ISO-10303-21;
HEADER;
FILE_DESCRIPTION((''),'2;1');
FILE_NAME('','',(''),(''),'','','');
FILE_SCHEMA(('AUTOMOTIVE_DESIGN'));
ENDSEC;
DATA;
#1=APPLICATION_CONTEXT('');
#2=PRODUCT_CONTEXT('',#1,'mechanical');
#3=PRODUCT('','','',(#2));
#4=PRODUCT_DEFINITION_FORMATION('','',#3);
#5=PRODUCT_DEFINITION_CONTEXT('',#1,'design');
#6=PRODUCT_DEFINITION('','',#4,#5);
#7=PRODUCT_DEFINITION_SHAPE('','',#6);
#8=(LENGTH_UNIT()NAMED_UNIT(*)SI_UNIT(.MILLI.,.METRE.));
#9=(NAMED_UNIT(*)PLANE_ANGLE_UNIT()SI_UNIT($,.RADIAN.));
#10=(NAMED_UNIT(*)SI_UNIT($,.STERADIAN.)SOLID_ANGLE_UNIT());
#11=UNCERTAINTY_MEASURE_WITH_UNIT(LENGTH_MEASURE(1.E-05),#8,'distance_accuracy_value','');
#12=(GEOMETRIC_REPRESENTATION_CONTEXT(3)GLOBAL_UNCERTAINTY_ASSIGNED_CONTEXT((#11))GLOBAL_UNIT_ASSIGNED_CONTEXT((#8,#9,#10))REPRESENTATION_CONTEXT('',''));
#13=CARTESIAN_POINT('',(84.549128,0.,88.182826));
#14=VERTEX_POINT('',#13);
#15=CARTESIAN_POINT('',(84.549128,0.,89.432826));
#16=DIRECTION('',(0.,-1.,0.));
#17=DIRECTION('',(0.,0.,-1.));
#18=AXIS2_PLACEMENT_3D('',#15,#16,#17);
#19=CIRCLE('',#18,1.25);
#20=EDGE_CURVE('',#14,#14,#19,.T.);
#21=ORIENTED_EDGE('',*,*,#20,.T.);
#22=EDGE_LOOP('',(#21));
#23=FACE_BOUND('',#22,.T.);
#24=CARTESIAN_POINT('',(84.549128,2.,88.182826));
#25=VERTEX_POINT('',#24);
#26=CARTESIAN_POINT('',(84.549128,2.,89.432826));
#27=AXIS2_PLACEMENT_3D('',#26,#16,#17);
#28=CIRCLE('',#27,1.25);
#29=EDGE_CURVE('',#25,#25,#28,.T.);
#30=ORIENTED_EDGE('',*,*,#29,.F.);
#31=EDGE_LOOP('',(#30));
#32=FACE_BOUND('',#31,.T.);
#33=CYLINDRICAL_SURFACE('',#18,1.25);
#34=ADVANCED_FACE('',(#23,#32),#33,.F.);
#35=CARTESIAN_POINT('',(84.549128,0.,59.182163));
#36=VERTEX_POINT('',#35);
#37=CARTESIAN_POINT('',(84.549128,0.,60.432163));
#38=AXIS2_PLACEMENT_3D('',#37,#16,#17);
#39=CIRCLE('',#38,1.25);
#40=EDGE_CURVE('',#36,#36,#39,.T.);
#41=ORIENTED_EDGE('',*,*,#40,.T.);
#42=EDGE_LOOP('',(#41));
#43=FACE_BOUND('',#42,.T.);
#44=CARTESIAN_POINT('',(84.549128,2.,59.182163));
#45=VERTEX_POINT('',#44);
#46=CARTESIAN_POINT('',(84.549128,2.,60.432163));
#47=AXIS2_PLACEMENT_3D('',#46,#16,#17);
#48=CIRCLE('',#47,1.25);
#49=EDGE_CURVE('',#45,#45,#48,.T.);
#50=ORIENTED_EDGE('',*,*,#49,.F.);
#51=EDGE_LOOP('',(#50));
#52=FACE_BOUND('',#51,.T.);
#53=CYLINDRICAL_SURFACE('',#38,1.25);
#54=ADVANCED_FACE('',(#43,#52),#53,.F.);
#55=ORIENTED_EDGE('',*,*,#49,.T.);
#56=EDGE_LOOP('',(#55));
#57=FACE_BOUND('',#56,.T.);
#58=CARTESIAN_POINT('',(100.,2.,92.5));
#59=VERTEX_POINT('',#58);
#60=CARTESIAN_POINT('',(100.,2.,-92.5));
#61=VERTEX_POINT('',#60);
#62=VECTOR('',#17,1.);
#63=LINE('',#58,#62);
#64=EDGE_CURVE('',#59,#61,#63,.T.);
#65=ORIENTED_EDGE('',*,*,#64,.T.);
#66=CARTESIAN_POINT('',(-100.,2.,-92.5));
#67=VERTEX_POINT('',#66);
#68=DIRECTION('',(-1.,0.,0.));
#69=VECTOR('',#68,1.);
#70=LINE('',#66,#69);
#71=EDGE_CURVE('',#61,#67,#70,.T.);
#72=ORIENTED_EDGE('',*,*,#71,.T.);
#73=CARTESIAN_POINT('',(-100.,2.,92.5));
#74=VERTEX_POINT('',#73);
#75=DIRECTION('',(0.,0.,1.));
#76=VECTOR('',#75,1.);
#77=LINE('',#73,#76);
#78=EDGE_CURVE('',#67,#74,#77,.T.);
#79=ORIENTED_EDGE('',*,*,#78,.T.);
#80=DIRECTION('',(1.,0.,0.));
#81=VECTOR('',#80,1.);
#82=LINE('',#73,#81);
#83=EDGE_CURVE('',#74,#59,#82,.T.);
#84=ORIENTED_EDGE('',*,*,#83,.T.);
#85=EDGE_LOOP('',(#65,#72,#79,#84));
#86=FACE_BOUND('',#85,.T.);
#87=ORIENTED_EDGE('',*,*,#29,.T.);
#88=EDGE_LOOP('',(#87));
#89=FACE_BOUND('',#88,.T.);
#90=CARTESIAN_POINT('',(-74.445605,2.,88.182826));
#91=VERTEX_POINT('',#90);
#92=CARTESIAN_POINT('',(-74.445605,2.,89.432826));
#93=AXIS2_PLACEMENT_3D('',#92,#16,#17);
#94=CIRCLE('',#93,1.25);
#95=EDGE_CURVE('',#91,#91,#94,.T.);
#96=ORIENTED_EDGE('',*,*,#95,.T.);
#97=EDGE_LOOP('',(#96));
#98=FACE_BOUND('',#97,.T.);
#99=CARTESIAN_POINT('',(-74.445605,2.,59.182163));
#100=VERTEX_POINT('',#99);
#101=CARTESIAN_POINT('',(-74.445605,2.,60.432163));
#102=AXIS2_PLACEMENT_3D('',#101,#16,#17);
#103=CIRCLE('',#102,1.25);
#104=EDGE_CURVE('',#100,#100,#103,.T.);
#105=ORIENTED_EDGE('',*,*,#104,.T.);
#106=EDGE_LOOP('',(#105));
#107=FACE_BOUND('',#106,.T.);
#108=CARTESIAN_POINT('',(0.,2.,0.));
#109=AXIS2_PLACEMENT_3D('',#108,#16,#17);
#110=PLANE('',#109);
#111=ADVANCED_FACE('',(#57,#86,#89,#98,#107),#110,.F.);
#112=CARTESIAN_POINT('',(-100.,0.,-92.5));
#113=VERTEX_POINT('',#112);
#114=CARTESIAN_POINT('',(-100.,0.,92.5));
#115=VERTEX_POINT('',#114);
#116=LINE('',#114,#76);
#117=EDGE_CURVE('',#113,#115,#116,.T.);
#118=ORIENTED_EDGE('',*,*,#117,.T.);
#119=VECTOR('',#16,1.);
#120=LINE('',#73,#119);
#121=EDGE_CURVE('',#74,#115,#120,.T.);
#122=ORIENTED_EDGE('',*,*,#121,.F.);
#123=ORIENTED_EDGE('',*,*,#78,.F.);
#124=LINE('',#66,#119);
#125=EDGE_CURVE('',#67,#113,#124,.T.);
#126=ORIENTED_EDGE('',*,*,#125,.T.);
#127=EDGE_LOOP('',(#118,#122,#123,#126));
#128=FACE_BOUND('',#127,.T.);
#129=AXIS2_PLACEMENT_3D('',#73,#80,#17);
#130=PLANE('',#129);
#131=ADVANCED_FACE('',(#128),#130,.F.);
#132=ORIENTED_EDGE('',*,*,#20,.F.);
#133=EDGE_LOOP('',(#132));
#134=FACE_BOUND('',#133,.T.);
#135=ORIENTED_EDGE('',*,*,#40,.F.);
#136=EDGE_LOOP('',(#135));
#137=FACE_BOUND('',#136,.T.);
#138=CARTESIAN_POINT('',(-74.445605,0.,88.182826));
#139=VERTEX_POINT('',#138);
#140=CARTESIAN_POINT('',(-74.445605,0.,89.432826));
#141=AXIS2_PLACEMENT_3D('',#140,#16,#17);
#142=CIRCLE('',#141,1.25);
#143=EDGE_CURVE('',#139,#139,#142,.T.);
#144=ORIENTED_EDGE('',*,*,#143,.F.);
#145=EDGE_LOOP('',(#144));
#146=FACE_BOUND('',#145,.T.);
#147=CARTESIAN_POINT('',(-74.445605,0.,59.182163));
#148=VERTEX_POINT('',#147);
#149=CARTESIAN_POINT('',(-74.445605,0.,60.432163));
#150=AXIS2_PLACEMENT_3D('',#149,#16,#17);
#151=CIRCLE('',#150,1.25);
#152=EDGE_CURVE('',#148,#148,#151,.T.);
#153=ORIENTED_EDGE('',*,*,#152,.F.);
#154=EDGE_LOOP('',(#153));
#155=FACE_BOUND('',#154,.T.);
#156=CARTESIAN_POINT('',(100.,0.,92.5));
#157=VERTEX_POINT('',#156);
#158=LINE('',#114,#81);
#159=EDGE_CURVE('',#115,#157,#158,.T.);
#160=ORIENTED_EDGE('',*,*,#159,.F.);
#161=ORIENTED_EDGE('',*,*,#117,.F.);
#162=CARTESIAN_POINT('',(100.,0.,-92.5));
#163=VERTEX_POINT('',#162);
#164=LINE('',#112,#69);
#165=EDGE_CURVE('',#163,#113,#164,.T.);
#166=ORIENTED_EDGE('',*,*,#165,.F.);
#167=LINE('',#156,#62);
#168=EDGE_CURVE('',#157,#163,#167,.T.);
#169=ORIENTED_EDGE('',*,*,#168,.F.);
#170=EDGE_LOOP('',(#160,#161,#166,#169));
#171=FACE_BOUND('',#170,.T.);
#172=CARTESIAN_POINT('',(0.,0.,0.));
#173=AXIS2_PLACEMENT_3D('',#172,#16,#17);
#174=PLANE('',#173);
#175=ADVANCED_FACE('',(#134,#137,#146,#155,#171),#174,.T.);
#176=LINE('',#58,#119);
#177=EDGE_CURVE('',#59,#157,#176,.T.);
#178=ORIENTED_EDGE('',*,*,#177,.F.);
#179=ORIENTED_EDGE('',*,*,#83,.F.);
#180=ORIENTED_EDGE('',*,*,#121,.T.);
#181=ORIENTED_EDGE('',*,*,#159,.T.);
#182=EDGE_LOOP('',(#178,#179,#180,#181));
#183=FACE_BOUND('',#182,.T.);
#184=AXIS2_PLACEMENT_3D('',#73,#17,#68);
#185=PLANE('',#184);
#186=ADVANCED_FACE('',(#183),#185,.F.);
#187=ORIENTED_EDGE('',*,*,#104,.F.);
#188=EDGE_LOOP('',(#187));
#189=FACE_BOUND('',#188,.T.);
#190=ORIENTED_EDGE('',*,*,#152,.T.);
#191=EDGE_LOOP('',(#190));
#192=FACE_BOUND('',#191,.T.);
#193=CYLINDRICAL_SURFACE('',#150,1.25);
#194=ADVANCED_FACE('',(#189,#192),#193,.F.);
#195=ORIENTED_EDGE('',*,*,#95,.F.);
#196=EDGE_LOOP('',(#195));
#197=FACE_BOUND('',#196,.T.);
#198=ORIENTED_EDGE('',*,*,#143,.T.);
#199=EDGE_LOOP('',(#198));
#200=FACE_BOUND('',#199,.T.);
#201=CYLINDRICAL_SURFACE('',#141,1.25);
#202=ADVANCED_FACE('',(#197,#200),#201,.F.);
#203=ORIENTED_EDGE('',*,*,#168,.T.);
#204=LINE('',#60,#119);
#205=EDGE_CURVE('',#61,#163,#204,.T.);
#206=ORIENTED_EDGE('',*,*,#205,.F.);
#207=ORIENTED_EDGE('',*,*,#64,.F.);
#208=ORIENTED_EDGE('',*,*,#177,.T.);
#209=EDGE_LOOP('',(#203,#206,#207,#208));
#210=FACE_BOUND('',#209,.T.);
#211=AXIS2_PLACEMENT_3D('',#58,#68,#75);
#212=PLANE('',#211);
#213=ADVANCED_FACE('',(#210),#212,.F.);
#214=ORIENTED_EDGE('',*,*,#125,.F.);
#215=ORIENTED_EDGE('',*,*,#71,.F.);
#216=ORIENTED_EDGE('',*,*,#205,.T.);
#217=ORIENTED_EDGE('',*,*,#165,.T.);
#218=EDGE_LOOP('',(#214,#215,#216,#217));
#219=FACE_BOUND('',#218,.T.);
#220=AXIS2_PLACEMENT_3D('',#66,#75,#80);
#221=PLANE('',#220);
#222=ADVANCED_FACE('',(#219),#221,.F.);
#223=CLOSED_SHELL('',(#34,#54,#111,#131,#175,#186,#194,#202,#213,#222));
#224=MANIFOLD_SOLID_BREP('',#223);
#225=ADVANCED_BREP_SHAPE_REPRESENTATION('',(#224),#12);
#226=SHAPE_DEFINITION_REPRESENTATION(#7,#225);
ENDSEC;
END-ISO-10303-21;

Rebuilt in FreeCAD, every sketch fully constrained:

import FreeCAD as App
import Part
import Sketcher

V = App.Vector
Q = App.Units.Quantity

doc = App.newDocument("Part")
body = doc.addObject("PartDesign::Body", "Body")

# Sketch on XZ plane
sketch1 = doc.addObject("Sketcher::SketchObject", "Sketch")
body.addObject(sketch1)
sketch1.AttachmentSupport = (doc.XZ_Plane, [""])
sketch1.MapMode = "FlatFace"
sketch1.addGeometry(Part.LineSegment(V(-100, -92, 0), V(-100, 92, 0)), False)
sketch1.addGeometry(Part.LineSegment(V(-100, 92, 0), V(100, 92, 0)), False)
sketch1.addGeometry(Part.LineSegment(V(100, 92, 0), V(100, -92, 0)), False)
sketch1.addGeometry(Part.LineSegment(V(100, -92, 0), V(-100, -92, 0)), False)
sketch1.addConstraint(Sketcher.Constraint("Coincident", 0, 2, 1, 1))
sketch1.addConstraint(Sketcher.Constraint("Coincident", 1, 2, 2, 1))
sketch1.addConstraint(Sketcher.Constraint("Coincident", 2, 2, 3, 1))
sketch1.addConstraint(Sketcher.Constraint("Coincident", 3, 2, 0, 1))
sketch1.addConstraint(Sketcher.Constraint("Vertical", 0))
sketch1.addConstraint(Sketcher.Constraint("Horizontal", 1))
sketch1.addConstraint(Sketcher.Constraint("Vertical", 2))
sketch1.addConstraint(Sketcher.Constraint("Horizontal", 3))
sketch1.addConstraint(Sketcher.Constraint("Symmetric", 0, 2, 2, 2, -1, 1))
sketch1.addConstraint(Sketcher.Constraint("DistanceX", 1, 1, 1, 2, Q("200 mm")))
sketch1.addConstraint(Sketcher.Constraint("DistanceY", 0, 1, 0, 2, Q("185 mm")))
pad1 = doc.addObject("PartDesign::Pad", "Pad")
body.addObject(pad1)
pad1.Profile = sketch1
pad1.Length = 2
pad1.Reversed = True

# Sketch on XZ plane
sketch2 = doc.addObject("Sketcher::SketchObject", "Sketch001")
body.addObject(sketch2)
sketch2.AttachmentSupport = (doc.XZ_Plane, [""])
sketch2.MapMode = "FlatFace"
sketch2.addGeometry(Part.Circle(V(84.5, 60.4, 0), V(0, 0, 1), 1.2), False)
sketch2.addGeometry(Part.Circle(V(84.5, 89.4, 0), V(0, 0, 1), 1.2), False)
sketch2.addGeometry(Part.Circle(V(-74.4, 89.4, 0), V(0, 0, 1), 1.2), False)
sketch2.addGeometry(Part.Circle(V(-74.4, 60.4, 0), V(0, 0, 1), 1.2), False)
sketch2.addConstraint(Sketcher.Constraint("Equal", 0, 1))
sketch2.addConstraint(Sketcher.Constraint("Equal", 1, 2))
sketch2.addConstraint(Sketcher.Constraint("Equal", 2, 3))
sketch2.addConstraint(Sketcher.Constraint("Horizontal", 1, 3, 2, 3))
sketch2.addConstraint(Sketcher.Constraint("Horizontal", 0, 3, 3, 3))
sketch2.addConstraint(Sketcher.Constraint("Vertical", 0, 3, 1, 3))
sketch2.addConstraint(Sketcher.Constraint("Vertical", 2, 3, 3, 3))
sketch2.addConstraint(Sketcher.Constraint("Diameter", 0, Q("2.5 mm")))
sketch2.addConstraint(Sketcher.Constraint("DistanceX", -1, 1, 0, 3, Q("84.549128 mm")))
sketch2.addConstraint(Sketcher.Constraint("DistanceY", -1, 1, 0, 3, Q("60.432163 mm")))
sketch2.addConstraint(Sketcher.Constraint("DistanceY", -1, 1, 1, 3, Q("89.432826 mm")))
sketch2.addConstraint(Sketcher.Constraint("DistanceX", 2, 3, -1, 1, Q("74.445605 mm")))
doc.recompute()
hole = doc.addObject("PartDesign::Hole", "Hole")
body.addObject(hole)
hole.Profile = sketch2
hole.ThreadType = "None"
hole.Diameter = 2.5
hole.DepthType = "Dimension"
hole.Depth = 2
hole.DrillPoint = "Angled"
hole.DrillPointAngle = 118

doc.recompute()
